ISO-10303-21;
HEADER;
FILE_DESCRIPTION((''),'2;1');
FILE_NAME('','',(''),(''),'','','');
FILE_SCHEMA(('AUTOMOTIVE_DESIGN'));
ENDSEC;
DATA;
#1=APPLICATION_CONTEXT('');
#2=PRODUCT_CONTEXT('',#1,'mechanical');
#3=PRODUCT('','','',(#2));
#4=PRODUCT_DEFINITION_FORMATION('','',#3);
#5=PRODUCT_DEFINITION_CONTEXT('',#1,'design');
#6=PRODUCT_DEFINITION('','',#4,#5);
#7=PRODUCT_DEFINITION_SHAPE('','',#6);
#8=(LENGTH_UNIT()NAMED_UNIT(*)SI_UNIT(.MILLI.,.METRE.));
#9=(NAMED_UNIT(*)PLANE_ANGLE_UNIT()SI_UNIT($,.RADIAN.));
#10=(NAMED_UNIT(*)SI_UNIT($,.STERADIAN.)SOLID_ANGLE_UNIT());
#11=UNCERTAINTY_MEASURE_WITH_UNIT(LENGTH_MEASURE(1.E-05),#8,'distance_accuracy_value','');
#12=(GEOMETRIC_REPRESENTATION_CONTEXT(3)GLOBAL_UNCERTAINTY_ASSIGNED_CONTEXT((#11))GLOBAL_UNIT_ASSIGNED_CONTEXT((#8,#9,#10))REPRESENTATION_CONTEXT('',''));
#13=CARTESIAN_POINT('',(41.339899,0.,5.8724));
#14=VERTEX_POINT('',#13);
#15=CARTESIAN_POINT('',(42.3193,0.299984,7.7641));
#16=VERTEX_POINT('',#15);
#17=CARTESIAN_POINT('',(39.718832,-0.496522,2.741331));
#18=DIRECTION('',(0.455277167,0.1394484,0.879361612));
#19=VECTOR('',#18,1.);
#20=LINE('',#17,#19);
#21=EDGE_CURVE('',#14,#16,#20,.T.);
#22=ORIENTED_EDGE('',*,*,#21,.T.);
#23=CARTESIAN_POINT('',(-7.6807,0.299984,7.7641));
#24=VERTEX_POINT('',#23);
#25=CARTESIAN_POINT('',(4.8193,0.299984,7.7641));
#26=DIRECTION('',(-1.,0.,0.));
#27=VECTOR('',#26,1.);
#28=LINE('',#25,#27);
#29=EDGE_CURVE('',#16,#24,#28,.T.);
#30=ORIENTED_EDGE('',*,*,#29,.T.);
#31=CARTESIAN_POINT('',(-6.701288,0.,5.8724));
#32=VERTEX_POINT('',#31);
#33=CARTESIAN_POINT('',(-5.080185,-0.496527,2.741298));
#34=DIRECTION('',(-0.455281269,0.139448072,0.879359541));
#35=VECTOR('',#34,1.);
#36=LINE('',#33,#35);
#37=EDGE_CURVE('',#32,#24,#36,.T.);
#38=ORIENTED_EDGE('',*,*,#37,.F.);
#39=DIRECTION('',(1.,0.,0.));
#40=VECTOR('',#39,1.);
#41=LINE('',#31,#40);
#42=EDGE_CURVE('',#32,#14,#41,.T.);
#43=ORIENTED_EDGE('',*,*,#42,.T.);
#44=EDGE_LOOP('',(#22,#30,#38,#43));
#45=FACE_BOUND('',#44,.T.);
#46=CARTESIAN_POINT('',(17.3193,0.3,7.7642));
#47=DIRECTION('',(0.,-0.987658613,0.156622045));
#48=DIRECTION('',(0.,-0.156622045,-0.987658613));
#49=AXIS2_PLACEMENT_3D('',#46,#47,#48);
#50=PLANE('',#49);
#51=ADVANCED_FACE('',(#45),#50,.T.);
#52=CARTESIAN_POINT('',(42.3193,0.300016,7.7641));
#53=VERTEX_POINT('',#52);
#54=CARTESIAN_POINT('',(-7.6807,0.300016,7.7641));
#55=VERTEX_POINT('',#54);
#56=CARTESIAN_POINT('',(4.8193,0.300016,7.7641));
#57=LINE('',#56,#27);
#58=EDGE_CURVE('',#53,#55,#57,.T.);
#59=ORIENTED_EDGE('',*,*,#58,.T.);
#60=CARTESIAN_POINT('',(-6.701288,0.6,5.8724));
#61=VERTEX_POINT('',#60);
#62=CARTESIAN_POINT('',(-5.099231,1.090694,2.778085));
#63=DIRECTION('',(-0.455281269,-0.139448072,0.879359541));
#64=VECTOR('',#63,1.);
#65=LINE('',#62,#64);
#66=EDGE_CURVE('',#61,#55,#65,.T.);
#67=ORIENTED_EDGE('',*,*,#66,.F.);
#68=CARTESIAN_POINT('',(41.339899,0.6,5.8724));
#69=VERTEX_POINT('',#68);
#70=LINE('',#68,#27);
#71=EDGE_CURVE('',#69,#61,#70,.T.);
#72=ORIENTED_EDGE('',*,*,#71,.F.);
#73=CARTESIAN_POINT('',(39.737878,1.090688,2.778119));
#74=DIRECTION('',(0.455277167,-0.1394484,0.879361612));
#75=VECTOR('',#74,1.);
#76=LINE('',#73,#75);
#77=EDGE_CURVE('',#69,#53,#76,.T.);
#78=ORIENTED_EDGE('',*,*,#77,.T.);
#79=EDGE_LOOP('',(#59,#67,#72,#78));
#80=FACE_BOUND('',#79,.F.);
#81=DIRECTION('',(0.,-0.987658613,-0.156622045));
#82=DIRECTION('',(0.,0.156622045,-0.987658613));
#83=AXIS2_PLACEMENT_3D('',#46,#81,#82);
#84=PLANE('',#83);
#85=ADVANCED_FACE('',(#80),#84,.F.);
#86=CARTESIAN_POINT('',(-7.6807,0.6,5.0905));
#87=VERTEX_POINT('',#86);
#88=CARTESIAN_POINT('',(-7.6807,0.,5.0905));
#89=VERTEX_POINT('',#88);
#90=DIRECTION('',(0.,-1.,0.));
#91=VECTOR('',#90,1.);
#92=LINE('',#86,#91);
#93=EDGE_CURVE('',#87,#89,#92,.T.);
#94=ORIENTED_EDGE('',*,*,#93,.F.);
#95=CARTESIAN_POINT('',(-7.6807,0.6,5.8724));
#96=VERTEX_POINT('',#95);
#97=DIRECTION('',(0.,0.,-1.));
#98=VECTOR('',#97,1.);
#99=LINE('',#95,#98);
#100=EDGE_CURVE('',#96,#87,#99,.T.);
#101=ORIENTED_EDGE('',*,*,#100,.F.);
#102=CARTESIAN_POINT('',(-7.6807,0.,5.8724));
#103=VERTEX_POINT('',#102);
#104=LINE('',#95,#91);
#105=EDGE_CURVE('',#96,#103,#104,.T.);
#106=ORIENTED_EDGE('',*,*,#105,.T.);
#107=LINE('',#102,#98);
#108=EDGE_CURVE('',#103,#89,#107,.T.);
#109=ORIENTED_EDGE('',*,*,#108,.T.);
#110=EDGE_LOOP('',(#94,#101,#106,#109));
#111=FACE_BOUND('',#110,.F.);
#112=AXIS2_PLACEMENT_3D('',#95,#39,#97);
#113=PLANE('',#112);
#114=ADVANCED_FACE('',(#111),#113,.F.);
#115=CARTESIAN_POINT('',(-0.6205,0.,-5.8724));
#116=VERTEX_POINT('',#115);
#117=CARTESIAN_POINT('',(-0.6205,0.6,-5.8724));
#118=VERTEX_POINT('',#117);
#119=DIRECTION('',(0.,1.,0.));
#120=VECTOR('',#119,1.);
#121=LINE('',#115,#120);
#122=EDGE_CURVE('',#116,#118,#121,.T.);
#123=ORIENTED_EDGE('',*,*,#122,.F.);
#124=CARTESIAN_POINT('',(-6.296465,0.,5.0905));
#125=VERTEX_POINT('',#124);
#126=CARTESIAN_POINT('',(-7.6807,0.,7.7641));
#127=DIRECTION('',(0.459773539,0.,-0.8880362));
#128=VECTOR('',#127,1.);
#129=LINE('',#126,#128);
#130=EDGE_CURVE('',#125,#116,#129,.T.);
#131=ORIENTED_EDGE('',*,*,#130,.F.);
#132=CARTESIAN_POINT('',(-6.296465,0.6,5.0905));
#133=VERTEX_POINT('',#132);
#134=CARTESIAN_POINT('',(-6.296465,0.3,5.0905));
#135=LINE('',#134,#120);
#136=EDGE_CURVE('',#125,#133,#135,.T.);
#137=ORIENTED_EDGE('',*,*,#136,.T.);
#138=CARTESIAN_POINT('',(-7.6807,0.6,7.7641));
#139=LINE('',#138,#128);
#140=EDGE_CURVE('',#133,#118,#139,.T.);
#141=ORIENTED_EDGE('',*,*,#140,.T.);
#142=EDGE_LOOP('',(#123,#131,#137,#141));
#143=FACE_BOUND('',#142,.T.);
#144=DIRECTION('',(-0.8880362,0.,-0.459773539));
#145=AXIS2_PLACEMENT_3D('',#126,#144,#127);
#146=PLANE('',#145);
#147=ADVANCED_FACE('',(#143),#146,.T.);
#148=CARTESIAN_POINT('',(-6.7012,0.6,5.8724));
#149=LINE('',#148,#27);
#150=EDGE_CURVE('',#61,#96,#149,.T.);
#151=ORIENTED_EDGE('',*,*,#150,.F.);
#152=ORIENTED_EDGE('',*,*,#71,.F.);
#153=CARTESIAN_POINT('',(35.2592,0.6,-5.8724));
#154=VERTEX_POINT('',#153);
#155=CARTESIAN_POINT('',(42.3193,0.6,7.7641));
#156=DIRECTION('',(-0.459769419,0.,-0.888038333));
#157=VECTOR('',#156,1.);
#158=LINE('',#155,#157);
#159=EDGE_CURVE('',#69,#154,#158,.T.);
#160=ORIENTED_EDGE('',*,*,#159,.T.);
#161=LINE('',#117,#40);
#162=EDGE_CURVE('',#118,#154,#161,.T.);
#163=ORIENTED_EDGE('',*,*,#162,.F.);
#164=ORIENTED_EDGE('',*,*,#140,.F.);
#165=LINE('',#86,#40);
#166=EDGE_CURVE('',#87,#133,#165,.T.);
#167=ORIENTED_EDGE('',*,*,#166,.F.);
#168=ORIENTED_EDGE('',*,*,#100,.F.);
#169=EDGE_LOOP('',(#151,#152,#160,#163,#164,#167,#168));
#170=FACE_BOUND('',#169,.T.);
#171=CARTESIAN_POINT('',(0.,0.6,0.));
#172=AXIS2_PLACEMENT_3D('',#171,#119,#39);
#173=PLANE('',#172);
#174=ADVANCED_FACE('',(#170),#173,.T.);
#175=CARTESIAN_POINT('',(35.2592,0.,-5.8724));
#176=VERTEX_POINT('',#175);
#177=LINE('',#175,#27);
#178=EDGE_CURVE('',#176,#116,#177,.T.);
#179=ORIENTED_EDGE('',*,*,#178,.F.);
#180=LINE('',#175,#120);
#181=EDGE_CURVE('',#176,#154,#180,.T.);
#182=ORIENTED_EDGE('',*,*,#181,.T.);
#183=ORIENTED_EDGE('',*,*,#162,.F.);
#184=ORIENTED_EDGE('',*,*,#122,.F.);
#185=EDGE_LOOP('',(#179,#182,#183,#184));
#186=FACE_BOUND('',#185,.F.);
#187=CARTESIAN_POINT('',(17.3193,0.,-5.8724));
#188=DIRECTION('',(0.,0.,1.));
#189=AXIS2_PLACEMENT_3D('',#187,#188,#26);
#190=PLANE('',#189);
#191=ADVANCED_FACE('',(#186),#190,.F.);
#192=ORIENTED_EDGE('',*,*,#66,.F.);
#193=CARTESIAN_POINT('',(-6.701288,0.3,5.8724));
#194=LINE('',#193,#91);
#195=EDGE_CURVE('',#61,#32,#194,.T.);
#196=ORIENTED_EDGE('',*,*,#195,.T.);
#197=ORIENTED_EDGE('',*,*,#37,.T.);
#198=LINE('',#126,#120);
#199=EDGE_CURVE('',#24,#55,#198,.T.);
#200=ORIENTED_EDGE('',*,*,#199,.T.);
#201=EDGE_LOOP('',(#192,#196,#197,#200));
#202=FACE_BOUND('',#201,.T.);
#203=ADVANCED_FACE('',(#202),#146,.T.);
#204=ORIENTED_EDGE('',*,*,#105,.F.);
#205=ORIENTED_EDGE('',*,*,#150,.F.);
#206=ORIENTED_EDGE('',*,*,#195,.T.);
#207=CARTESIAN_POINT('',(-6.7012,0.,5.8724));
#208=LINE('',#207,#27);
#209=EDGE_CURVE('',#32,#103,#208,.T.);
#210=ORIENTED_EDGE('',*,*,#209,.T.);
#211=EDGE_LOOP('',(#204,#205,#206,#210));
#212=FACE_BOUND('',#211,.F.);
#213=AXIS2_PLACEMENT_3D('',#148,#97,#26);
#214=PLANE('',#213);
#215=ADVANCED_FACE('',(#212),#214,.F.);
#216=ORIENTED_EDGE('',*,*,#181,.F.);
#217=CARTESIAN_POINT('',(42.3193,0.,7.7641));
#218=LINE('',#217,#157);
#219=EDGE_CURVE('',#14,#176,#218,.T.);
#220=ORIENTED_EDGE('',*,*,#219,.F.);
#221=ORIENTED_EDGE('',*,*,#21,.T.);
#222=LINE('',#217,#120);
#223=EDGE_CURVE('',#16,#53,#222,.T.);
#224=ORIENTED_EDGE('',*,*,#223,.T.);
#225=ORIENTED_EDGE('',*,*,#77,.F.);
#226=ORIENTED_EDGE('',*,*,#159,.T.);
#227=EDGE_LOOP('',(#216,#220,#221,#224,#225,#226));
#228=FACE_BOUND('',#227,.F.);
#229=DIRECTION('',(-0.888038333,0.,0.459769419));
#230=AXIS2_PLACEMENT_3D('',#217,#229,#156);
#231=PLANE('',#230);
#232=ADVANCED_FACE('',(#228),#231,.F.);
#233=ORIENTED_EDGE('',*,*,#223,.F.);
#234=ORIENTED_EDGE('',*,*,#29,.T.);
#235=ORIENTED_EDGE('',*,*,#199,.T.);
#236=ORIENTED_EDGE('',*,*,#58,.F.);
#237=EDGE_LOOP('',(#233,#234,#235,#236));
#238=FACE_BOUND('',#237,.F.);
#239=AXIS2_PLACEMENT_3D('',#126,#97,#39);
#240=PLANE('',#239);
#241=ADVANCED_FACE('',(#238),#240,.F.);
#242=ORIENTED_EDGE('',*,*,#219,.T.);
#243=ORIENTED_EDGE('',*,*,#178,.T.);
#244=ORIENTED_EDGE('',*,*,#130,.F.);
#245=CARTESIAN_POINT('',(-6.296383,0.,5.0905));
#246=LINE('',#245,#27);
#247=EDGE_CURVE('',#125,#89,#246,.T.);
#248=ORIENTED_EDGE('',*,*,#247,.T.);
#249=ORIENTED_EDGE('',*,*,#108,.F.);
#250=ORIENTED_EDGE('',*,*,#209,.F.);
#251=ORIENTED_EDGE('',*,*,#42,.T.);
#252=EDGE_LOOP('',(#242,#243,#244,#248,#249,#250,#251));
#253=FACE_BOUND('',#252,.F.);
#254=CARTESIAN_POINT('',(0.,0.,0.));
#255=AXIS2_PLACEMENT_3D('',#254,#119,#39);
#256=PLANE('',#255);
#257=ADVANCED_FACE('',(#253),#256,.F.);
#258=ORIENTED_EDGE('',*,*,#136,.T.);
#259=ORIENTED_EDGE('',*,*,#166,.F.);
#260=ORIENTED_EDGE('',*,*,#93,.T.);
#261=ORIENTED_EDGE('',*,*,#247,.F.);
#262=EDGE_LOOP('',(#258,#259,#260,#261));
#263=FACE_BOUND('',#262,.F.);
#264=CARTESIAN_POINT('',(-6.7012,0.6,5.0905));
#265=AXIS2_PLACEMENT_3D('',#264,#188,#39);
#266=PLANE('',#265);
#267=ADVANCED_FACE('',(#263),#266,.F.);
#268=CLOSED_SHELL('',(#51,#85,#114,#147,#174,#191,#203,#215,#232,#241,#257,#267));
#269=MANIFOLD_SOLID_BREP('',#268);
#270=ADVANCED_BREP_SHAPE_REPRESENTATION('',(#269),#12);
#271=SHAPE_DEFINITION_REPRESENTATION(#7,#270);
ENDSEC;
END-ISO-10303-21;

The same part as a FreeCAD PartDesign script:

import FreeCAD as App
import Part
import Sketcher

V = App.Vector
Q = App.Units.Quantity


def add_polygon(sketch, points):
    """Adds a closed chain of lines whose ends are joined by coincident constraints."""
    first, n = sketch.GeometryCount, len(points)
    for a, b in zip(points, points[1:] + points[:1]):
        sketch.addGeometry(Part.LineSegment(App.Vector(*a, 0), App.Vector(*b, 0)), False)
    for i in range(n):
        sketch.addConstraint(Sketcher.Constraint("Coincident", first + i, 2, first + (i + 1) % n, 1))

doc = App.newDocument("Part")
body = doc.addObject("PartDesign::Body", "Body")

# Sketch on XZ plane
sketch1 = body.newObject("Sketcher::SketchObject", "Sketch")
sketch1.AttachmentSupport = (doc.getObject("XZ_Plane"), [""])
sketch1.MapMode = "FlatFace"
add_polygon(sketch1, [(-1, -6), (-8, 8), (42, 8), (35, -6)])  # lines 0-3
sketch1.addConstraint([
    Sketcher.Constraint("Horizontal", 1),
    Sketcher.Constraint("Horizontal", 3),
    Sketcher.Constraint("Equal", 0, 2),
    Sketcher.Constraint("DistanceX", 1, 1, 1, 2, 50.0),
    Sketcher.Constraint("DistanceX", 2, 2, 1, 2, 7.06),
    Sketcher.Constraint("DistanceY", -1, 1, 0, 2, 7.764),
    Sketcher.Constraint("Distance", 0, 15.3558),
    Sketcher.Constraint("DistanceX", 0, 2, -1, 1, 7.6807),
])
pad1 = body.newObject("PartDesign::Pad", "Pad")
pad1.Profile = sketch1
pad1.Length = 0.6
pad1.Reversed = True

# Sketch on YZ plane
sketch2 = body.newObject("Sketcher::SketchObject", "Sketch001")
sketch2.AttachmentSupport = (doc.getObject("YZ_Plane"), [""])
sketch2.MapMode = "FlatFace"
sketch2.AttachmentOffset = App.Placement(V(0, 0, 17.3193), App.Rotation())
add_polygon(sketch2, [(0, 5.87), (0, 7.76), (0.3, 7.76)])  # lines 0-2
add_polygon(sketch2, [(0.6, 5.87), (0.3, 7.76), (0.6, 7.76)])  # lines 3-5
sketch2.addConstraint([
    Sketcher.Constraint("Vertical", 0),
    Sketcher.Constraint("Horizontal", 1),
    Sketcher.Constraint("Horizontal", 4),
    Sketcher.Constraint("Vertical", 5),
    Sketcher.Constraint("Coincident", 3, 2, 1, 2),
    Sketcher.Constraint("PointOnObject", 0, 2, -2),
    Sketcher.Constraint("Horizontal", 2, 2, 5, 2),
    Sketcher.Constraint("Equal", 1, 4),
    Sketcher.Constraint("DistanceX", 1, 1, 1, 2, 0.3),
    Sketcher.Constraint("Angle", 2, Q("-99.011 deg")),
    Sketcher.Constraint("DistanceY", -1, 1, 0, 2, 7.7642),
])
pocket1 = body.newObject("PartDesign::Pocket", "Pocket")
pocket1.Profile = sketch2
pocket1.Length = 50
pocket1.Midplane = True

# Sketch on XZ plane
sketch3 = body.newObject("Sketcher::SketchObject", "Sketch002")
sketch3.AttachmentSupport = (doc.getObject("XZ_Plane"), [""])
sketch3.MapMode = "FlatFace"
sketch3.AttachmentOffset = App.Placement(V(0, 0, -0.6), App.Rotation())
add_polygon(sketch3, [(-6.3, 5.1), (-7.7, 5.1), (-7.7, 5.9), (-6.7, 5.9)])  # lines 0-3
sketch3.addConstraint([
    Sketcher.Constraint("Horizontal", 0),
    Sketcher.Constraint("Vertical", 1),
    Sketcher.Constraint("Horizontal", 2),
    Sketcher.Constraint("DistanceY", 1, 1, 1, 2, 0.782),
    Sketcher.Constraint("DistanceX", 0, 2, 0, 1, 1.3843),
    Sketcher.Constraint("DistanceX", 2, 1, 2, 2, 0.9795),
    Sketcher.Constraint("DistanceX", 0, 2, -1, 1, 7.6807),
    Sketcher.Constraint("DistanceY", -1, 1, 0, 2, 5.0905),
])
pad2 = body.newObject("PartDesign::Pad", "Pad001")
pad2.Profile = sketch3
pad2.Length = 0.6

doc.recompute()
